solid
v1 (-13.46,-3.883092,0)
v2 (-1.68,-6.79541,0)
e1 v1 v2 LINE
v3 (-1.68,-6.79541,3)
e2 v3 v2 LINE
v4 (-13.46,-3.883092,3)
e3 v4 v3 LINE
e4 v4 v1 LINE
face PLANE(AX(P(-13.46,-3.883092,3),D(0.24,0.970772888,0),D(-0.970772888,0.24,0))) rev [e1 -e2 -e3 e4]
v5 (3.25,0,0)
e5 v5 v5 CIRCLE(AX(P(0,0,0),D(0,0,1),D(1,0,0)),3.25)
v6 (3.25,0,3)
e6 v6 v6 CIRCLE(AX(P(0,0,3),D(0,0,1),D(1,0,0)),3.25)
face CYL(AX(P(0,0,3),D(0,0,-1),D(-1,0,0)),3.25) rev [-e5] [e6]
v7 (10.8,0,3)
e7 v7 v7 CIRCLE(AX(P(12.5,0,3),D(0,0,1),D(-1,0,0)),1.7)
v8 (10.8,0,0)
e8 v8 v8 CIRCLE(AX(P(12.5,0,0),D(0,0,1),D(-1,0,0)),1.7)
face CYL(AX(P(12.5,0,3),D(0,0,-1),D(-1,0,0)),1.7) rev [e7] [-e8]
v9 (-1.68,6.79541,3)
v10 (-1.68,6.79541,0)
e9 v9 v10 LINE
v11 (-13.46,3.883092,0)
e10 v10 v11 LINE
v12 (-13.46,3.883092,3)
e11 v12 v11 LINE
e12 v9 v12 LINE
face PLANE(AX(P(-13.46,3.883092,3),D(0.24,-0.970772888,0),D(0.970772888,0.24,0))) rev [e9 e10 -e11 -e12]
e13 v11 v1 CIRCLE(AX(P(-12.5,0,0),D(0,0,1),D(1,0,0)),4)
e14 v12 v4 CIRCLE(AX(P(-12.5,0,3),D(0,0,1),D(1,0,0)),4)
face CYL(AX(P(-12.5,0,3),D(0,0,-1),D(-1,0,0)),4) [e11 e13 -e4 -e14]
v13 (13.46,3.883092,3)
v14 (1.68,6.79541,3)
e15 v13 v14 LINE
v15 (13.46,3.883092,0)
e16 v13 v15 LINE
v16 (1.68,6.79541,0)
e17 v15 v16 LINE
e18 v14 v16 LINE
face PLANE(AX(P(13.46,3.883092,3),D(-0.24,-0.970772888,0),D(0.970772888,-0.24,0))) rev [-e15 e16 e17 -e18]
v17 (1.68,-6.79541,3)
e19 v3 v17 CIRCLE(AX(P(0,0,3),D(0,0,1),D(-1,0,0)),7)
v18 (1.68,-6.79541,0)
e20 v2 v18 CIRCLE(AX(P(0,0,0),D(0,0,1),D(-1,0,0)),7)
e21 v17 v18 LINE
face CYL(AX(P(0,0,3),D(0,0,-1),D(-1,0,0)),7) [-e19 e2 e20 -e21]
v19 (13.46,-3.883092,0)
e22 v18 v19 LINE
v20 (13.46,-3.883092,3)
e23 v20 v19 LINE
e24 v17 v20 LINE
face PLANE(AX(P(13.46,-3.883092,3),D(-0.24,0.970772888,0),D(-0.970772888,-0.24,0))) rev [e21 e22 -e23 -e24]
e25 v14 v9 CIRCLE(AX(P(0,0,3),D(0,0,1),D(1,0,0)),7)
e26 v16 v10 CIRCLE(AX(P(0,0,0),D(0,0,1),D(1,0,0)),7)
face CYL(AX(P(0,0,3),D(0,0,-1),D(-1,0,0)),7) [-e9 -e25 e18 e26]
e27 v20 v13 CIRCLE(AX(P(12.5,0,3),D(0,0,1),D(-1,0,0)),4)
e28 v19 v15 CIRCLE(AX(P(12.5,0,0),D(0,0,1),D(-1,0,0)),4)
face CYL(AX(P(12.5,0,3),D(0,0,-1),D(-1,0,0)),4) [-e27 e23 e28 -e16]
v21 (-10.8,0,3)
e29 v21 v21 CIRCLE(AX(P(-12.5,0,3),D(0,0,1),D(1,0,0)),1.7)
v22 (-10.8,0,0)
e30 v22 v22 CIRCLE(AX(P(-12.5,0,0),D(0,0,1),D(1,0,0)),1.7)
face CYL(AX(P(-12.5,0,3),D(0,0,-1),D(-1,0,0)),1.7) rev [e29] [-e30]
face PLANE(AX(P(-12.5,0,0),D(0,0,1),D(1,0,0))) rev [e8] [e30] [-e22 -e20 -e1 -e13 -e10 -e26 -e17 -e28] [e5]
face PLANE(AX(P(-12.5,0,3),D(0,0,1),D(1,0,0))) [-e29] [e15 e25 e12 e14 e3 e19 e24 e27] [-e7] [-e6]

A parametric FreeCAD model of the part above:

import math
import FreeCAD as App
import Part
import Sketcher

doc = App.newDocument("Part")
body = doc.addObject("PartDesign::Body", "Body")

# Sketch on XY plane
sketch1 = body.newObject("Sketcher::SketchObject", "Sketch")
sketch1.AttachmentSupport = (doc.getObject("XY_Plane"), [""])
sketch1.MapMode = "FlatFace"
sketch1.addGeometry([
    Part.LineSegment(App.Vector(-1.7, 6.8, 0), App.Vector(-13.5, 3.9, 0)),  # 0
    Part.ArcOfCircle(Part.Circle(App.Vector(-12.5, 0, 0), App.Vector(0, 0, 1), 4), math.radians(104), math.radians(256)),  # 1
    Part.LineSegment(App.Vector(-13.5, -3.9, 0), App.Vector(-1.7, -6.8, 0)),  # 2
    Part.ArcOfCircle(Part.Circle(App.Vector(0, 0, 0), App.Vector(0, 0, 1), 7), math.radians(-104), math.radians(-76)),  # 3
    Part.LineSegment(App.Vector(1.7, -6.8, 0), App.Vector(13.5, -3.9, 0)),  # 4
    Part.ArcOfCircle(Part.Circle(App.Vector(12.5, 0, 0), App.Vector(0, 0, 1), 4), math.radians(-76), math.radians(76)),  # 5
    Part.LineSegment(App.Vector(13.5, 3.9, 0), App.Vector(1.7, 6.8, 0)),  # 6
    Part.ArcOfCircle(Part.Circle(App.Vector(0, 0, 0), App.Vector(0, 0, 1), 7), math.radians(76), math.radians(104)),  # 7
    Part.Circle(App.Vector(12.5, 0, 0), App.Vector(0, 0, 1), 1.7),  # 8
    Part.Circle(App.Vector(0, 0, 0), App.Vector(0, 0, 1), 3.2),  # 9
    Part.Circle(App.Vector(-12.5, 0, 0), App.Vector(0, 0, 1), 1.7),  # 10
], False)
sketch1.addConstraint([
    Sketcher.Constraint("Tangent", 0, 2, 1, 1),
    Sketcher.Constraint("Tangent", 1, 2, 2, 1),
    Sketcher.Constraint("Tangent", 2, 2, 3, 1),
    Sketcher.Constraint("Tangent", 3, 2, 4, 1),
    Sketcher.Constraint("Tangent", 4, 2, 5, 1),
    Sketcher.Constraint("Tangent", 5, 2, 6, 1),
    Sketcher.Constraint("Tangent", 6, 2, 7, 1),
    Sketcher.Constraint("Tangent", 7, 2, 0, 1),
    Sketcher.Constraint("Coincident", 3, 3, -1, 1),
    Sketcher.Constraint("Coincident", 7, 3, -1, 1),
    Sketcher.Constraint("Coincident", 9, 3, -1, 1),
    Sketcher.Constraint("Coincident", 8, 3, 5, 3),
    Sketcher.Constraint("Coincident", 10, 3, 1, 3),
    Sketcher.Constraint("Equal", 1, 5),
    Sketcher.Constraint("Equal", 3, 7),
    Sketcher.Constraint("Equal", 8, 10),
    Sketcher.Constraint("Symmetric", 1, 3, 5, 3, -1, 1),
    Sketcher.Constraint("PointOnObject", 1, 3, -1),
    Sketcher.Constraint("Radius", 1, 4.0),
    Sketcher.Constraint("Radius", 3, 7.0),
    Sketcher.Constraint("Diameter", 8, 3.4),
    Sketcher.Constraint("Diameter", 9, 6.5),
    Sketcher.Constraint("DistanceX", 1, 3, 5, 3, 25.0),
])
pad1 = body.newObject("PartDesign::Pad", "Pad")
pad1.Profile = sketch1
pad1.Length = 3

doc.recompute()
